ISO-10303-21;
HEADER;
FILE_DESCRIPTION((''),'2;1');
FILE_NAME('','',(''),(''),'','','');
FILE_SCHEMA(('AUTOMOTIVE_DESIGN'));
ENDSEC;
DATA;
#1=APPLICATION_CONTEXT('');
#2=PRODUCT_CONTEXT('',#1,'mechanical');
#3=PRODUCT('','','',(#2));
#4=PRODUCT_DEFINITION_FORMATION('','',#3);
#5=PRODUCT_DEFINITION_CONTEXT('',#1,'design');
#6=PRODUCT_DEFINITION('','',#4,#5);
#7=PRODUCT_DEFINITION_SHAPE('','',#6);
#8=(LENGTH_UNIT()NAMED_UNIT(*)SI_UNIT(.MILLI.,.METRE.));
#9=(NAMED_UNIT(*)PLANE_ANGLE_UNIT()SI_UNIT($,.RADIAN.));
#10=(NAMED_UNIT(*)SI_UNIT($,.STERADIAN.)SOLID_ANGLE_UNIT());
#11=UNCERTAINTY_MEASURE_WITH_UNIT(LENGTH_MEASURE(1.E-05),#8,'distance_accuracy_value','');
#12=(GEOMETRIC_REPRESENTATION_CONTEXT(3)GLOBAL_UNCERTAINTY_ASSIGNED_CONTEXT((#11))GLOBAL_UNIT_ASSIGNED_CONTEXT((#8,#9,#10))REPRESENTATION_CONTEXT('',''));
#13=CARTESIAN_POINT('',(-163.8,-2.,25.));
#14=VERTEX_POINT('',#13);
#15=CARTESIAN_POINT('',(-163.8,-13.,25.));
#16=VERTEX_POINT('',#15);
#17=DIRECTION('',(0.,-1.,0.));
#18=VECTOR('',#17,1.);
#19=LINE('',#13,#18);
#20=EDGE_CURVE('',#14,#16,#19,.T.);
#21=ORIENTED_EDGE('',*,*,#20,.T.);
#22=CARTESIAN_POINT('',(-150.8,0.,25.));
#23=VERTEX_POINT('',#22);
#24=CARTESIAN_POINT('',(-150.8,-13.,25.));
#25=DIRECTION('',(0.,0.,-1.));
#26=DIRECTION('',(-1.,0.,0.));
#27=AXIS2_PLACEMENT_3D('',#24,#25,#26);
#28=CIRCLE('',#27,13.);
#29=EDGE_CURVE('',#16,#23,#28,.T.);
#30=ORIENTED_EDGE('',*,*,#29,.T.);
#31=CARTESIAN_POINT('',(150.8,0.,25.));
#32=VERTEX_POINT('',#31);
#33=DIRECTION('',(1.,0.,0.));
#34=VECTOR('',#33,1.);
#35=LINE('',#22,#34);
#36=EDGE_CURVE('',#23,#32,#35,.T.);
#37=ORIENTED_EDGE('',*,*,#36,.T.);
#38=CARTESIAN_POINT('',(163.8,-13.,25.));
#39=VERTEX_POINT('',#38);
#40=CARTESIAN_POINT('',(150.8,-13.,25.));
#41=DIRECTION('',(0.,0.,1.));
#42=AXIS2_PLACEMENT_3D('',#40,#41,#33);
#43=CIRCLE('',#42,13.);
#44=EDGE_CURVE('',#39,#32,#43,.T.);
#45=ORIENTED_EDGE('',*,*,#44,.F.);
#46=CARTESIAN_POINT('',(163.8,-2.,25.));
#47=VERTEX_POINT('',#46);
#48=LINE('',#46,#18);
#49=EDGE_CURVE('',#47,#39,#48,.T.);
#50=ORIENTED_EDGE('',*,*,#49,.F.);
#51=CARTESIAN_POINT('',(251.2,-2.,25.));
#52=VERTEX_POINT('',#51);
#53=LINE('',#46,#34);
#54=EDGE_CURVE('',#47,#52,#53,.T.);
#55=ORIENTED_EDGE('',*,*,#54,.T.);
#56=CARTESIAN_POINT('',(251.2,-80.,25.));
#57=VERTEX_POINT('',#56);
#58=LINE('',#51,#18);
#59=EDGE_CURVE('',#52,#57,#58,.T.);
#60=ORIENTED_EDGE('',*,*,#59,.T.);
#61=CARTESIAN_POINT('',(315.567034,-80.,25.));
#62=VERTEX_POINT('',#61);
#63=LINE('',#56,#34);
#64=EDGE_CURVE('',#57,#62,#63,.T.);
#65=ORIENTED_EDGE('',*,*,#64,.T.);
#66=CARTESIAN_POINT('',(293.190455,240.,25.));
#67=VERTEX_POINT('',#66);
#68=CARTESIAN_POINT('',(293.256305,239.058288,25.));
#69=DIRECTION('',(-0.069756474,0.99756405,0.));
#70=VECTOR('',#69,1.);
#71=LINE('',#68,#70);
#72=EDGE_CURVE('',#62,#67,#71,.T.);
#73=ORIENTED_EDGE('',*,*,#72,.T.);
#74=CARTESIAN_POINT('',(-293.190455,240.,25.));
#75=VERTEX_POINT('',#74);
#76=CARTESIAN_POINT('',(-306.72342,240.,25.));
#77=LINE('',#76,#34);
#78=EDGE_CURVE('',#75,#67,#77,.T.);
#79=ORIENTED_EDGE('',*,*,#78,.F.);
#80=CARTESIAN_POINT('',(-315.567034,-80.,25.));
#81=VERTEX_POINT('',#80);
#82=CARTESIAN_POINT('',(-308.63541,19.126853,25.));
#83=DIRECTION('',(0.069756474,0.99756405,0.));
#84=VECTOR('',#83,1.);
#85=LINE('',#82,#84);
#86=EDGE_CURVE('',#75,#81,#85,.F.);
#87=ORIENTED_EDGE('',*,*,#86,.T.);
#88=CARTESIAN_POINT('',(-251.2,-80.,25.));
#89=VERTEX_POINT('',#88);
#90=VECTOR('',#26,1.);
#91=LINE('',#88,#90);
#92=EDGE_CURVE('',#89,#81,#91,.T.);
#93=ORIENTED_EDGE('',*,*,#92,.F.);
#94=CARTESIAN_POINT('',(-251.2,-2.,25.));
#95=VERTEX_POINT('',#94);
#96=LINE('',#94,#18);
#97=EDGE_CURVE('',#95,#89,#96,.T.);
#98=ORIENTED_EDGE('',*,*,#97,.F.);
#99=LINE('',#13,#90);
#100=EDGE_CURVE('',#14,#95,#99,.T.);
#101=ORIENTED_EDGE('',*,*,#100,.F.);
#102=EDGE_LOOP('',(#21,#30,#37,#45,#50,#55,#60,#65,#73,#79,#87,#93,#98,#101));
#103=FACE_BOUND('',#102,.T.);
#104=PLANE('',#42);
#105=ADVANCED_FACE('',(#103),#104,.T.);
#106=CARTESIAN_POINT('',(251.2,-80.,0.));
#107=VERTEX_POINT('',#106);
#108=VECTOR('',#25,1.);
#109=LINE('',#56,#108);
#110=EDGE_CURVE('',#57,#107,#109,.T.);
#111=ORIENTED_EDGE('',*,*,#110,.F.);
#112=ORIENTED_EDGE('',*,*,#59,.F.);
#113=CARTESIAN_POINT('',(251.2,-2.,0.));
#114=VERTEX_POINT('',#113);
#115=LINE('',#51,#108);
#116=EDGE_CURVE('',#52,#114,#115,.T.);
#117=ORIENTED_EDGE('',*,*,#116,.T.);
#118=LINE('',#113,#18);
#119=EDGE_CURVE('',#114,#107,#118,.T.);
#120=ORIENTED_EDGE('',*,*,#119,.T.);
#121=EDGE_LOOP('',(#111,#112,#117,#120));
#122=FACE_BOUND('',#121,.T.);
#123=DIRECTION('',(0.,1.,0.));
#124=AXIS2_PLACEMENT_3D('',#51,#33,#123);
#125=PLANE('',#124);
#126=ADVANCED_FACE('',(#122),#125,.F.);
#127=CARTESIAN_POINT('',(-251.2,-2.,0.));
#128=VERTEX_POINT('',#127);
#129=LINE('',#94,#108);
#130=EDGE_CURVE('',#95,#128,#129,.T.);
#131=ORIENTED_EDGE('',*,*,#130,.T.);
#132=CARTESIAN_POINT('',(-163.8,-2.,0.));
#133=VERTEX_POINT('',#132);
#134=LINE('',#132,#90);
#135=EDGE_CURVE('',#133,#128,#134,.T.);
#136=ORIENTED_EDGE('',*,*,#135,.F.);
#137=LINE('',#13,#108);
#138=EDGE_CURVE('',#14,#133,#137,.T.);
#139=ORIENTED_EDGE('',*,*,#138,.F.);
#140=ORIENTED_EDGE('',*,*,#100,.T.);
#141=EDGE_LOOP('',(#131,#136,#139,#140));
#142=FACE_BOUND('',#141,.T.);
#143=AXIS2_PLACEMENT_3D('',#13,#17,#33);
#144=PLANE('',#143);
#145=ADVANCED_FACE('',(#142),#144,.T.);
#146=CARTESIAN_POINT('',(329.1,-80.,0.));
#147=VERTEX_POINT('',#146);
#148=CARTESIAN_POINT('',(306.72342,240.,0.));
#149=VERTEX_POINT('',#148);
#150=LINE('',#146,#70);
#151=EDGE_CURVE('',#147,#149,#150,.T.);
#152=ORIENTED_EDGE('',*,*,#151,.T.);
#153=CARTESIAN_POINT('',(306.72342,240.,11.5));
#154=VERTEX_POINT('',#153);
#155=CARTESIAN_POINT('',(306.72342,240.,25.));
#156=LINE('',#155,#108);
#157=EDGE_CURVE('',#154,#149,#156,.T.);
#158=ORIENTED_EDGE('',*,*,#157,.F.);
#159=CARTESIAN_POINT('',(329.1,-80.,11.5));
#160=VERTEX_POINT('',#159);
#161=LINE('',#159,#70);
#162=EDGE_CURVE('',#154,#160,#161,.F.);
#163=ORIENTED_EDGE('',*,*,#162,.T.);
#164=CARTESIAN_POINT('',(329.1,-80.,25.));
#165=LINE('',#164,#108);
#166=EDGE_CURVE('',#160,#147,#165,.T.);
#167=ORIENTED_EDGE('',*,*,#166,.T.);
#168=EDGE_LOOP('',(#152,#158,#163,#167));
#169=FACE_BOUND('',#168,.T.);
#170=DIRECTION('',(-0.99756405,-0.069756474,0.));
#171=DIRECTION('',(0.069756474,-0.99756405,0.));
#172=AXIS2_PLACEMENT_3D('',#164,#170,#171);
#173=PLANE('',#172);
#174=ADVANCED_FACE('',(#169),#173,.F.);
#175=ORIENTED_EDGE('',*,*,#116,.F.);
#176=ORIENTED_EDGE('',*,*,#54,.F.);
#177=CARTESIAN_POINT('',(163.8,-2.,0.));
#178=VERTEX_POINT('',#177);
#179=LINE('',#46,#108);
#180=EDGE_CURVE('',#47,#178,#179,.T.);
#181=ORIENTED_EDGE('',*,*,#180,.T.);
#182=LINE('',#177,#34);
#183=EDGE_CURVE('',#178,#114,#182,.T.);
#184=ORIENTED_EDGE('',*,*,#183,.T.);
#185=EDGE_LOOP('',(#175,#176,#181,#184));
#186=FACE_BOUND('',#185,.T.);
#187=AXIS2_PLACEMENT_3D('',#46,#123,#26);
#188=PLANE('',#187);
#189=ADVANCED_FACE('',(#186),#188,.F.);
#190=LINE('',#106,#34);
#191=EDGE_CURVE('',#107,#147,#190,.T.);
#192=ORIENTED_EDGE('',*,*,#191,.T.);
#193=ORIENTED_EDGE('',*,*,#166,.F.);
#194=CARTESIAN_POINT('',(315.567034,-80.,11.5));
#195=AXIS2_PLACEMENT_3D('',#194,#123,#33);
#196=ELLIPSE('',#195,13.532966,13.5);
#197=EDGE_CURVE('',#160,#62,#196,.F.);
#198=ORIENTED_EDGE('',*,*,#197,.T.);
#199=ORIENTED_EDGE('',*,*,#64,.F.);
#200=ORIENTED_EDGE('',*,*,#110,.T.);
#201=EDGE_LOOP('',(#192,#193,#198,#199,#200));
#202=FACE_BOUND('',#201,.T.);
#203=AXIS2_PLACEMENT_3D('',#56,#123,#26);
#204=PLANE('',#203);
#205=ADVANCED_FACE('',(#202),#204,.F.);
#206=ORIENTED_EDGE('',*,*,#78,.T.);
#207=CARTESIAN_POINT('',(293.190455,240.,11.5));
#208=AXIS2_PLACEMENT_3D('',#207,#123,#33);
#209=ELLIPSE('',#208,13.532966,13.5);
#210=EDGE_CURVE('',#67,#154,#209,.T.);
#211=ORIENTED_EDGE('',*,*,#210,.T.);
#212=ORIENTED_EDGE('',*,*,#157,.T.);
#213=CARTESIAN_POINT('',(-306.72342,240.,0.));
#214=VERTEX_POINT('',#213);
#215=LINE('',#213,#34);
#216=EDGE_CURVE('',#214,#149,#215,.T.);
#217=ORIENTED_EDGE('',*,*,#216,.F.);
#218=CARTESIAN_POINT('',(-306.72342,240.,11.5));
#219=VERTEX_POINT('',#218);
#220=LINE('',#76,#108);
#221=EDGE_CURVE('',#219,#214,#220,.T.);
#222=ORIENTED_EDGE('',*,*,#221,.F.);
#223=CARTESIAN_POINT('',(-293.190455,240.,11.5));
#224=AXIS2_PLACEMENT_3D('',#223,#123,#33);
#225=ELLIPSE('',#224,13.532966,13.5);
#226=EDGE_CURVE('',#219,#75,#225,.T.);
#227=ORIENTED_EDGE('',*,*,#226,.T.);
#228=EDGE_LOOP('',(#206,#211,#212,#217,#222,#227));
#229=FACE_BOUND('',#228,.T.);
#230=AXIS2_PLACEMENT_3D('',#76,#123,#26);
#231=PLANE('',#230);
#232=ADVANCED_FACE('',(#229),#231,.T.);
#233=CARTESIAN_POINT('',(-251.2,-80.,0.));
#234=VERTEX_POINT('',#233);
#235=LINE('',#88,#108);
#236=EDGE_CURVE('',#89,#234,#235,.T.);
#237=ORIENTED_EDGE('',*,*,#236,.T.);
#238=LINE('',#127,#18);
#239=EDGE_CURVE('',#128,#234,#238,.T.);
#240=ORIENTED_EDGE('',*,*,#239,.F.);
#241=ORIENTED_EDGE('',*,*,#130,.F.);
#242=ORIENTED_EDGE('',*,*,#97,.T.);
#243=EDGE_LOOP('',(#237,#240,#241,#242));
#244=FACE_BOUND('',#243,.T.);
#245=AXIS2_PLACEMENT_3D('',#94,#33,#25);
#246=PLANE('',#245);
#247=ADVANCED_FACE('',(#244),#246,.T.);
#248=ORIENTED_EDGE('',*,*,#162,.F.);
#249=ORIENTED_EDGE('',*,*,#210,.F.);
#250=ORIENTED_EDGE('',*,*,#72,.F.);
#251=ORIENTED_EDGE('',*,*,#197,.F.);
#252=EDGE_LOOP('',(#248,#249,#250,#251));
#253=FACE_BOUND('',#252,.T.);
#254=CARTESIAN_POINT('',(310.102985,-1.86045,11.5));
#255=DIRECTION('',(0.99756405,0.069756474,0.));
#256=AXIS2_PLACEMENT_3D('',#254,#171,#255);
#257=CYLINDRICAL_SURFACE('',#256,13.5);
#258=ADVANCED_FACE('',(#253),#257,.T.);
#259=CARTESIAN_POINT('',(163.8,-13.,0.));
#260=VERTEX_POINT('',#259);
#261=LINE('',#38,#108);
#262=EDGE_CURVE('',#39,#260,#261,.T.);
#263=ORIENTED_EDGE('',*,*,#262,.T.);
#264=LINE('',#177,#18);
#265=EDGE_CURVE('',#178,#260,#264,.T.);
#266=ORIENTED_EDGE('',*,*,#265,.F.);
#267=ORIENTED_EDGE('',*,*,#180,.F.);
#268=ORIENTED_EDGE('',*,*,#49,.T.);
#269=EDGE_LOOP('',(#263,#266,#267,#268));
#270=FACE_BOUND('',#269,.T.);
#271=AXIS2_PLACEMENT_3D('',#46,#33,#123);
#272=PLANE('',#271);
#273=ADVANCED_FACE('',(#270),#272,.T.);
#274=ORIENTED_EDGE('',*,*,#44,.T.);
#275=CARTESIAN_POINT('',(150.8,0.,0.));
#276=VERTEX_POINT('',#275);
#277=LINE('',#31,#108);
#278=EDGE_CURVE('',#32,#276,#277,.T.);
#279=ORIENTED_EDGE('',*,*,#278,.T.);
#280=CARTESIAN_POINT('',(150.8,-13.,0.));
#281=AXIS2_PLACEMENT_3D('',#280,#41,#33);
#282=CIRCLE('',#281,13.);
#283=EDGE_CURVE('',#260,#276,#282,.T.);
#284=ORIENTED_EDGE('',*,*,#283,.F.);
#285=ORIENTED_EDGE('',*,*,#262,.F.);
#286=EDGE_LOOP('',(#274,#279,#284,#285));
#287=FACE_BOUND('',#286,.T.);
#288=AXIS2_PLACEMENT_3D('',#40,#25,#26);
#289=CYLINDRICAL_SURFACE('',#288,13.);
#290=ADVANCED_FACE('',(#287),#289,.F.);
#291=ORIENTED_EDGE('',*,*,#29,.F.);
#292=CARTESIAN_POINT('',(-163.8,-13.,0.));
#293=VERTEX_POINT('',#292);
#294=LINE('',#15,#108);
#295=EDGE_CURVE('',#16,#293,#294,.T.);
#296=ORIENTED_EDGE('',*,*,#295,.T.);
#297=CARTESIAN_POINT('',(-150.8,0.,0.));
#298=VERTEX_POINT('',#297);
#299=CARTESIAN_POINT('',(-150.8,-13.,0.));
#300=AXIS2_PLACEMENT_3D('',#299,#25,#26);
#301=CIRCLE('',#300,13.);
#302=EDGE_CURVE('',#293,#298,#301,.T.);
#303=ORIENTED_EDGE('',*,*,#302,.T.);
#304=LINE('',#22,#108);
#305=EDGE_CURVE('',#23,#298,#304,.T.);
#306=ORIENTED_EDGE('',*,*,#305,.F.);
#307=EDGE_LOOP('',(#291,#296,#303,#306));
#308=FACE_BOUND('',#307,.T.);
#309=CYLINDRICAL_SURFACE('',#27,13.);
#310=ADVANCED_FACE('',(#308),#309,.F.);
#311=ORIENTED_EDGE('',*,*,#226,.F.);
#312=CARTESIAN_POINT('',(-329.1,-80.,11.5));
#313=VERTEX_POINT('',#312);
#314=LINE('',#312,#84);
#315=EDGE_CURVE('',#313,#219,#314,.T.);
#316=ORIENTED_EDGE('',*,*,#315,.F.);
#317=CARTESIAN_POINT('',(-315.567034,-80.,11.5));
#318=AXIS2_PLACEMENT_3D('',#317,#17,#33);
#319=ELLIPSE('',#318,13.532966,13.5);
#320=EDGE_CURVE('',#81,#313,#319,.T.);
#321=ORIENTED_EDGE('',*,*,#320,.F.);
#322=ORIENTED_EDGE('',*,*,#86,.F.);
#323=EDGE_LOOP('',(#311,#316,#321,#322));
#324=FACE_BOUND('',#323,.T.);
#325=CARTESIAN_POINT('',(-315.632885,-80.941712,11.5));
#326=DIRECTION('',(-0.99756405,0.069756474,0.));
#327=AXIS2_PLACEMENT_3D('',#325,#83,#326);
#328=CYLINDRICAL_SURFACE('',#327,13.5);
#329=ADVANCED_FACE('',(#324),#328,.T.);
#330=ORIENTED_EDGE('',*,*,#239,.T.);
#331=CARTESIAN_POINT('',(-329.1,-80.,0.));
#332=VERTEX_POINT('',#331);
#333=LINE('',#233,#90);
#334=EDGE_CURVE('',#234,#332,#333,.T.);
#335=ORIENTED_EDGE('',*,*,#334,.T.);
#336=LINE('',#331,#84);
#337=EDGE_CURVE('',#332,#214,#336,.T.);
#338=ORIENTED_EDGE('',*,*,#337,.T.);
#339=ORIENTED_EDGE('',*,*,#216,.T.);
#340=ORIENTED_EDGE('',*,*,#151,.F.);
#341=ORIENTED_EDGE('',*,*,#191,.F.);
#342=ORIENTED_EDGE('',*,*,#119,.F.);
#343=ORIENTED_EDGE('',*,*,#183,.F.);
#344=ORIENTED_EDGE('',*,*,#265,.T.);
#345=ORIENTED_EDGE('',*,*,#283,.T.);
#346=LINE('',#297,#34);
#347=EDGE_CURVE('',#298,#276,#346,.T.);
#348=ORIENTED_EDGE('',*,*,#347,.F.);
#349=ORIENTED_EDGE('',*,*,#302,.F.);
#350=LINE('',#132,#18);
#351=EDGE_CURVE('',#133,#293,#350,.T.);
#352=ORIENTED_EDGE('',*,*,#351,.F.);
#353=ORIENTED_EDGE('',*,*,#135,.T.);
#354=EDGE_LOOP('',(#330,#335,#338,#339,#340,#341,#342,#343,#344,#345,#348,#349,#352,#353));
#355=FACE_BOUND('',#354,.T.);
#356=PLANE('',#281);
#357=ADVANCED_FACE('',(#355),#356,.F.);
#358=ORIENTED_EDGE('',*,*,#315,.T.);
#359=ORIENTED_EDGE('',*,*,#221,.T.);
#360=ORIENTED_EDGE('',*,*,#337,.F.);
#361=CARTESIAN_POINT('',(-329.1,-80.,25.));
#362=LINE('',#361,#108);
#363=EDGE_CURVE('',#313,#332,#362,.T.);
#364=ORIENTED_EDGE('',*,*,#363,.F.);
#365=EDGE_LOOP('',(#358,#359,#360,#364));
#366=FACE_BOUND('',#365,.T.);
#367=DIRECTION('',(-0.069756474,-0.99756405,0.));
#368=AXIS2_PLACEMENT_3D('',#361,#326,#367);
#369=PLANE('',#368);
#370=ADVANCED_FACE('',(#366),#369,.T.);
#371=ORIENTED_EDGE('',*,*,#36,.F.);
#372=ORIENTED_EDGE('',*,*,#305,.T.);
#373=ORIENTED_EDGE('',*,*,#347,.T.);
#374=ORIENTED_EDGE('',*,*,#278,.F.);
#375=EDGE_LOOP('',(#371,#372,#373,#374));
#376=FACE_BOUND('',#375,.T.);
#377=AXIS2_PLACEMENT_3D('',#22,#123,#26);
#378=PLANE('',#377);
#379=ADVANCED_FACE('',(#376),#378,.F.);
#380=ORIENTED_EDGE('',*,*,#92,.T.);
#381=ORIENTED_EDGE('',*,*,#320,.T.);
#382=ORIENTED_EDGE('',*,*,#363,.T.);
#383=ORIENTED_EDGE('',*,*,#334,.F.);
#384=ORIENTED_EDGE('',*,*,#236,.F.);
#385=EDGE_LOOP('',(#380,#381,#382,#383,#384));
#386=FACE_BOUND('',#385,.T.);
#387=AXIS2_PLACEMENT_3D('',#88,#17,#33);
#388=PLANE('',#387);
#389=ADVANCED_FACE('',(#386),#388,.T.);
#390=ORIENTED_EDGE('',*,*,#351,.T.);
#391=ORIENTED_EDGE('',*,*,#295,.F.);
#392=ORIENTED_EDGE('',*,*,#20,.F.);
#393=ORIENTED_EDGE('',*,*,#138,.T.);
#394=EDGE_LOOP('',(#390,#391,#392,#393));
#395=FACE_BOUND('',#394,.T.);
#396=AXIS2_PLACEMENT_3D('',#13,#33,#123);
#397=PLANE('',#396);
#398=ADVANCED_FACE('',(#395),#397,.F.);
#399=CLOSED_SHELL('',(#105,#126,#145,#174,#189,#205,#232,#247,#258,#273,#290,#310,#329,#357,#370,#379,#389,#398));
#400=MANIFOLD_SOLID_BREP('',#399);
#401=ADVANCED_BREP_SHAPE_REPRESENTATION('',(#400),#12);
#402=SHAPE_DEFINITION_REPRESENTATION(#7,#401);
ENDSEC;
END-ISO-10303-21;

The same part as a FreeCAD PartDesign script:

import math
import FreeCAD as App
import Part
import Sketcher

V = App.Vector
Q = App.Units.Quantity


def edges_at(feature, points):
    """Names of the edges that pass closest to the given points."""
    edges = feature.Shape.Edges
    near = lambda p: min(range(len(edges)), key=lambda i: edges[i].distToShape(Part.Vertex(*p))[0])
    return sorted({f"Edge{near(p) + 1}" for p in points})

doc = App.newDocument("Part")
params = doc.addObject("Spreadsheet::Sheet", "Params")
for row, (alias, value) in enumerate([
    ("sketch1_radius", "13 mm"),
    ("sketch1_height", "78 mm"),
    ("sketch1_height2", "11 mm"),
    ("sketch1_width", "87.4 mm"),
    ("sketch1_width2", "301.6 mm"),
    ("pad1_length", "25 mm"),
    ("fillet_radius", "13.5 mm"),
], start=1):
    params.set(f"A{row}", alias)
    params.set(f"B{row}", "=" + value)
    params.setAlias(f"B{row}", alias)

body = doc.addObject("PartDesign::Body", "Body")

sketch1 = doc.addObject("Sketcher::SketchObject", "Sketch")
body.addObject(sketch1)
sketch1.AttachmentSupport = (doc.XY_Plane, [""])
sketch1.MapMode = "FlatFace"
sketch1.addGeometry([
    Part.LineSegment(V(-251.2, -80, 0), V(-251.2, -2, 0)),
    Part.LineSegment(V(-251.2, -2, 0), V(-163.8, -2, 0)),
    Part.LineSegment(V(-163.8, -2, 0), V(-163.8, -13, 0)),
    Part.ArcOfCircle(Part.Circle(V(-150.8, -13, 0), V(0, 0, 1), 13), math.radians(90), math.radians(180)),
    Part.LineSegment(V(-150.8, 0, 0), V(150.8, 0, 0)),
    Part.ArcOfCircle(Part.Circle(V(150.8, -13, 0), V(0, 0, 1), 13), math.radians(0), math.radians(90)),
    Part.LineSegment(V(163.8, -13, 0), V(163.8, -2, 0)),
    Part.LineSegment(V(163.8, -2, 0), V(251.2, -2, 0)),
    Part.LineSegment(V(251.2, -2, 0), V(251.2, -80, 0)),
    Part.LineSegment(V(251.2, -80, 0), V(329.1, -80, 0)),
    Part.LineSegment(V(329.1, -80, 0), V(306.72342, 240, 0)),
    Part.LineSegment(V(306.72342, 240, 0), V(-306.72342, 240, 0)),
    Part.LineSegment(V(-306.72342, 240, 0), V(-329.1, -80, 0)),
    Part.LineSegment(V(-329.1, -80, 0), V(-251.2, -80, 0)),
], False)
sketch1.addConstraint([
    Sketcher.Constraint("Coincident", 0, 2, 1, 1),
    Sketcher.Constraint("Coincident", 1, 2, 2, 1),
    Sketcher.Constraint("Tangent", 2, 2, 3, 2),
    Sketcher.Constraint("Tangent", 3, 1, 4, 1),
    Sketcher.Constraint("Tangent", 4, 2, 5, 2),
    Sketcher.Constraint("Tangent", 5, 1, 6, 1),
    Sketcher.Constraint("Coincident", 6, 2, 7, 1),
    Sketcher.Constraint("Coincident", 7, 2, 8, 1),
    Sketcher.Constraint("Coincident", 8, 2, 9, 1),
    Sketcher.Constraint("Coincident", 9, 2, 10, 1),
    Sketcher.Constraint("Coincident", 10, 2, 11, 1),
    Sketcher.Constraint("Coincident", 11, 2, 12, 1),
    Sketcher.Constraint("Coincident", 12, 2, 13, 1),
    Sketcher.Constraint("Coincident", 13, 2, 0, 1),
    Sketcher.Constraint("Vertical", 0),
    Sketcher.Constraint("Horizontal", 1),
    Sketcher.Constraint("Vertical", 2),
    Sketcher.Constraint("Horizontal", 4),
    Sketcher.Constraint("Vertical", 6),
    Sketcher.Constraint("Horizontal", 7),
    Sketcher.Constraint("Vertical", 8),
    Sketcher.Constraint("Horizontal", 9),
    Sketcher.Constraint("Horizontal", 11),
    Sketcher.Constraint("Horizontal", 13),
    Sketcher.Constraint("Equal", 3, 5),
    Sketcher.Constraint("Symmetric", 3, 1, 4, 2, -1, 1),
    Sketcher.Constraint("Symmetric", 0, 2, 7, 2, -2),
    Sketcher.Constraint("Symmetric", 9, 2, 12, 2, -2),
    Sketcher.Constraint("Equal", 10, 12),
    Sketcher.Constraint("Radius", 3, 13.0),
    Sketcher.Constraint("DistanceY", 0, 1, 0, 2, 78.0),
    Sketcher.Constraint("DistanceY", 2, 2, 2, 1, 11.0),
    Sketcher.Constraint("Angle", 10, Q("94 deg")),
    Sketcher.Constraint("DistanceX", 1, 1, 1, 2, 87.4),
    Sketcher.Constraint("DistanceX", 4, 1, 4, 2, 301.6),
    Sketcher.Constraint("DistanceX", 9, 1, 9, 2, 77.9),
    Sketcher.Constraint("DistanceY", -1, 1, 10, 2, 240.0),
])
sketch1.setExpression("Constraints[29]", "Params.sketch1_radius")
sketch1.setExpression("Constraints[30]", "Params.sketch1_height")
sketch1.setExpression("Constraints[31]", "Params.sketch1_height2")
sketch1.setExpression("Constraints[33]", "Params.sketch1_width")
sketch1.setExpression("Constraints[34]", "Params.sketch1_width2")
pad1 = doc.addObject("PartDesign::Pad", "Pad")
body.addObject(pad1)
pad1.Profile = sketch1
pad1.setExpression("Length", "Params.pad1_length")
doc.recompute()

fillet = doc.addObject("PartDesign::Fillet", "Fillet")
body.addObject(fillet)
fillet.Base = (pad1, edges_at(pad1, [(317.912, 80, 25), (-317.912, 80, 25)]))
fillet.setExpression("Radius", "Params.fillet_radius")

doc.recompute()
